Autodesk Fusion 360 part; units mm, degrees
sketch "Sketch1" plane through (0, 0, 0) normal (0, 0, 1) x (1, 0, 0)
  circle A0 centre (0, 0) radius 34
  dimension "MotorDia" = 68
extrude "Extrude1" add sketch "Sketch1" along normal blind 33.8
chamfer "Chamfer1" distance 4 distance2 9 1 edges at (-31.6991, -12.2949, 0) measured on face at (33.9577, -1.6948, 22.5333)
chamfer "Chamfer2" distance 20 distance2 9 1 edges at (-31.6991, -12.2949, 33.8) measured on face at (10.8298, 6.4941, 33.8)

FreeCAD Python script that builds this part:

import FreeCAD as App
import Part
import Sketcher
from FreeCAD import Vector
Q = App.Units.Quantity


def edges_at(feature, points):
    """Names of the edges that pass closest to the given points."""
    edges = feature.Shape.Edges
    near = lambda p: min(range(len(edges)), key=lambda i: edges[i].distToShape(Part.Vertex(*p))[0])
    return sorted({f"Edge{near(p) + 1}" for p in points})

doc = App.newDocument("Part")
params = doc.addObject("Spreadsheet::Sheet", "Params")
for row, (alias, value) in enumerate([
    ("sketch1_diameter", "68 mm"),
    ("pad1_length", "33.8 mm"),
    ("chamfer_size", "4 mm"),
    ("chamfer_size2", "9 mm"),
    ("chamfer2_size", "20 mm"),
    ("chamfer2_size2", "9 mm"),
], start=1):
    params.set(f"A{row}", alias)
    params.set(f"B{row}", "=" + value)
    params.setAlias(f"B{row}", alias)

body = doc.addObject("PartDesign::Body", "Body")

# Sketch on XY plane
sketch1 = body.newObject("Sketcher::SketchObject", "Sketch")
sketch1.AttachmentSupport = (doc.getObject("XY_Plane"), [""])
sketch1.MapMode = "FlatFace"
sketch1.addGeometry(Part.Circle(Vector(0, 0, 0), Vector(0, 0, 1), 34), False)
sketch1.addConstraint(Sketcher.Constraint("Coincident", 0, 3, -1, 1))
sketch1.addConstraint(Sketcher.Constraint("Diameter", 0, Q("68 mm")))
sketch1.setExpression("Constraints[1]", "Params.sketch1_diameter")
pad1 = body.newObject("PartDesign::Pad", "Pad")
pad1.Profile = sketch1
pad1.setExpression("Length", "Params.pad1_length")
doc.recompute()

chamfer = body.newObject("PartDesign::Chamfer", "Chamfer")
chamfer.Base = (pad1, edges_at(pad1, [(-31.699, -12.295, 0)]))
chamfer.ChamferType = "Two distances"
chamfer.setExpression("Size", "Params.chamfer_size")
chamfer.setExpression("Size2", "Params.chamfer_size2")
doc.recompute()

chamfer2 = body.newObject("PartDesign::Chamfer", "Chamfer001")
chamfer2.Base = (chamfer, edges_at(chamfer, [(-31.699, -12.295, 33.8)]))
chamfer2.ChamferType = "Two distances"
chamfer2.setExpression("Size", "Params.chamfer2_size")
chamfer2.setExpression("Size2", "Params.chamfer2_size2")
chamfer2.FlipDirection = True

doc.recompute()
